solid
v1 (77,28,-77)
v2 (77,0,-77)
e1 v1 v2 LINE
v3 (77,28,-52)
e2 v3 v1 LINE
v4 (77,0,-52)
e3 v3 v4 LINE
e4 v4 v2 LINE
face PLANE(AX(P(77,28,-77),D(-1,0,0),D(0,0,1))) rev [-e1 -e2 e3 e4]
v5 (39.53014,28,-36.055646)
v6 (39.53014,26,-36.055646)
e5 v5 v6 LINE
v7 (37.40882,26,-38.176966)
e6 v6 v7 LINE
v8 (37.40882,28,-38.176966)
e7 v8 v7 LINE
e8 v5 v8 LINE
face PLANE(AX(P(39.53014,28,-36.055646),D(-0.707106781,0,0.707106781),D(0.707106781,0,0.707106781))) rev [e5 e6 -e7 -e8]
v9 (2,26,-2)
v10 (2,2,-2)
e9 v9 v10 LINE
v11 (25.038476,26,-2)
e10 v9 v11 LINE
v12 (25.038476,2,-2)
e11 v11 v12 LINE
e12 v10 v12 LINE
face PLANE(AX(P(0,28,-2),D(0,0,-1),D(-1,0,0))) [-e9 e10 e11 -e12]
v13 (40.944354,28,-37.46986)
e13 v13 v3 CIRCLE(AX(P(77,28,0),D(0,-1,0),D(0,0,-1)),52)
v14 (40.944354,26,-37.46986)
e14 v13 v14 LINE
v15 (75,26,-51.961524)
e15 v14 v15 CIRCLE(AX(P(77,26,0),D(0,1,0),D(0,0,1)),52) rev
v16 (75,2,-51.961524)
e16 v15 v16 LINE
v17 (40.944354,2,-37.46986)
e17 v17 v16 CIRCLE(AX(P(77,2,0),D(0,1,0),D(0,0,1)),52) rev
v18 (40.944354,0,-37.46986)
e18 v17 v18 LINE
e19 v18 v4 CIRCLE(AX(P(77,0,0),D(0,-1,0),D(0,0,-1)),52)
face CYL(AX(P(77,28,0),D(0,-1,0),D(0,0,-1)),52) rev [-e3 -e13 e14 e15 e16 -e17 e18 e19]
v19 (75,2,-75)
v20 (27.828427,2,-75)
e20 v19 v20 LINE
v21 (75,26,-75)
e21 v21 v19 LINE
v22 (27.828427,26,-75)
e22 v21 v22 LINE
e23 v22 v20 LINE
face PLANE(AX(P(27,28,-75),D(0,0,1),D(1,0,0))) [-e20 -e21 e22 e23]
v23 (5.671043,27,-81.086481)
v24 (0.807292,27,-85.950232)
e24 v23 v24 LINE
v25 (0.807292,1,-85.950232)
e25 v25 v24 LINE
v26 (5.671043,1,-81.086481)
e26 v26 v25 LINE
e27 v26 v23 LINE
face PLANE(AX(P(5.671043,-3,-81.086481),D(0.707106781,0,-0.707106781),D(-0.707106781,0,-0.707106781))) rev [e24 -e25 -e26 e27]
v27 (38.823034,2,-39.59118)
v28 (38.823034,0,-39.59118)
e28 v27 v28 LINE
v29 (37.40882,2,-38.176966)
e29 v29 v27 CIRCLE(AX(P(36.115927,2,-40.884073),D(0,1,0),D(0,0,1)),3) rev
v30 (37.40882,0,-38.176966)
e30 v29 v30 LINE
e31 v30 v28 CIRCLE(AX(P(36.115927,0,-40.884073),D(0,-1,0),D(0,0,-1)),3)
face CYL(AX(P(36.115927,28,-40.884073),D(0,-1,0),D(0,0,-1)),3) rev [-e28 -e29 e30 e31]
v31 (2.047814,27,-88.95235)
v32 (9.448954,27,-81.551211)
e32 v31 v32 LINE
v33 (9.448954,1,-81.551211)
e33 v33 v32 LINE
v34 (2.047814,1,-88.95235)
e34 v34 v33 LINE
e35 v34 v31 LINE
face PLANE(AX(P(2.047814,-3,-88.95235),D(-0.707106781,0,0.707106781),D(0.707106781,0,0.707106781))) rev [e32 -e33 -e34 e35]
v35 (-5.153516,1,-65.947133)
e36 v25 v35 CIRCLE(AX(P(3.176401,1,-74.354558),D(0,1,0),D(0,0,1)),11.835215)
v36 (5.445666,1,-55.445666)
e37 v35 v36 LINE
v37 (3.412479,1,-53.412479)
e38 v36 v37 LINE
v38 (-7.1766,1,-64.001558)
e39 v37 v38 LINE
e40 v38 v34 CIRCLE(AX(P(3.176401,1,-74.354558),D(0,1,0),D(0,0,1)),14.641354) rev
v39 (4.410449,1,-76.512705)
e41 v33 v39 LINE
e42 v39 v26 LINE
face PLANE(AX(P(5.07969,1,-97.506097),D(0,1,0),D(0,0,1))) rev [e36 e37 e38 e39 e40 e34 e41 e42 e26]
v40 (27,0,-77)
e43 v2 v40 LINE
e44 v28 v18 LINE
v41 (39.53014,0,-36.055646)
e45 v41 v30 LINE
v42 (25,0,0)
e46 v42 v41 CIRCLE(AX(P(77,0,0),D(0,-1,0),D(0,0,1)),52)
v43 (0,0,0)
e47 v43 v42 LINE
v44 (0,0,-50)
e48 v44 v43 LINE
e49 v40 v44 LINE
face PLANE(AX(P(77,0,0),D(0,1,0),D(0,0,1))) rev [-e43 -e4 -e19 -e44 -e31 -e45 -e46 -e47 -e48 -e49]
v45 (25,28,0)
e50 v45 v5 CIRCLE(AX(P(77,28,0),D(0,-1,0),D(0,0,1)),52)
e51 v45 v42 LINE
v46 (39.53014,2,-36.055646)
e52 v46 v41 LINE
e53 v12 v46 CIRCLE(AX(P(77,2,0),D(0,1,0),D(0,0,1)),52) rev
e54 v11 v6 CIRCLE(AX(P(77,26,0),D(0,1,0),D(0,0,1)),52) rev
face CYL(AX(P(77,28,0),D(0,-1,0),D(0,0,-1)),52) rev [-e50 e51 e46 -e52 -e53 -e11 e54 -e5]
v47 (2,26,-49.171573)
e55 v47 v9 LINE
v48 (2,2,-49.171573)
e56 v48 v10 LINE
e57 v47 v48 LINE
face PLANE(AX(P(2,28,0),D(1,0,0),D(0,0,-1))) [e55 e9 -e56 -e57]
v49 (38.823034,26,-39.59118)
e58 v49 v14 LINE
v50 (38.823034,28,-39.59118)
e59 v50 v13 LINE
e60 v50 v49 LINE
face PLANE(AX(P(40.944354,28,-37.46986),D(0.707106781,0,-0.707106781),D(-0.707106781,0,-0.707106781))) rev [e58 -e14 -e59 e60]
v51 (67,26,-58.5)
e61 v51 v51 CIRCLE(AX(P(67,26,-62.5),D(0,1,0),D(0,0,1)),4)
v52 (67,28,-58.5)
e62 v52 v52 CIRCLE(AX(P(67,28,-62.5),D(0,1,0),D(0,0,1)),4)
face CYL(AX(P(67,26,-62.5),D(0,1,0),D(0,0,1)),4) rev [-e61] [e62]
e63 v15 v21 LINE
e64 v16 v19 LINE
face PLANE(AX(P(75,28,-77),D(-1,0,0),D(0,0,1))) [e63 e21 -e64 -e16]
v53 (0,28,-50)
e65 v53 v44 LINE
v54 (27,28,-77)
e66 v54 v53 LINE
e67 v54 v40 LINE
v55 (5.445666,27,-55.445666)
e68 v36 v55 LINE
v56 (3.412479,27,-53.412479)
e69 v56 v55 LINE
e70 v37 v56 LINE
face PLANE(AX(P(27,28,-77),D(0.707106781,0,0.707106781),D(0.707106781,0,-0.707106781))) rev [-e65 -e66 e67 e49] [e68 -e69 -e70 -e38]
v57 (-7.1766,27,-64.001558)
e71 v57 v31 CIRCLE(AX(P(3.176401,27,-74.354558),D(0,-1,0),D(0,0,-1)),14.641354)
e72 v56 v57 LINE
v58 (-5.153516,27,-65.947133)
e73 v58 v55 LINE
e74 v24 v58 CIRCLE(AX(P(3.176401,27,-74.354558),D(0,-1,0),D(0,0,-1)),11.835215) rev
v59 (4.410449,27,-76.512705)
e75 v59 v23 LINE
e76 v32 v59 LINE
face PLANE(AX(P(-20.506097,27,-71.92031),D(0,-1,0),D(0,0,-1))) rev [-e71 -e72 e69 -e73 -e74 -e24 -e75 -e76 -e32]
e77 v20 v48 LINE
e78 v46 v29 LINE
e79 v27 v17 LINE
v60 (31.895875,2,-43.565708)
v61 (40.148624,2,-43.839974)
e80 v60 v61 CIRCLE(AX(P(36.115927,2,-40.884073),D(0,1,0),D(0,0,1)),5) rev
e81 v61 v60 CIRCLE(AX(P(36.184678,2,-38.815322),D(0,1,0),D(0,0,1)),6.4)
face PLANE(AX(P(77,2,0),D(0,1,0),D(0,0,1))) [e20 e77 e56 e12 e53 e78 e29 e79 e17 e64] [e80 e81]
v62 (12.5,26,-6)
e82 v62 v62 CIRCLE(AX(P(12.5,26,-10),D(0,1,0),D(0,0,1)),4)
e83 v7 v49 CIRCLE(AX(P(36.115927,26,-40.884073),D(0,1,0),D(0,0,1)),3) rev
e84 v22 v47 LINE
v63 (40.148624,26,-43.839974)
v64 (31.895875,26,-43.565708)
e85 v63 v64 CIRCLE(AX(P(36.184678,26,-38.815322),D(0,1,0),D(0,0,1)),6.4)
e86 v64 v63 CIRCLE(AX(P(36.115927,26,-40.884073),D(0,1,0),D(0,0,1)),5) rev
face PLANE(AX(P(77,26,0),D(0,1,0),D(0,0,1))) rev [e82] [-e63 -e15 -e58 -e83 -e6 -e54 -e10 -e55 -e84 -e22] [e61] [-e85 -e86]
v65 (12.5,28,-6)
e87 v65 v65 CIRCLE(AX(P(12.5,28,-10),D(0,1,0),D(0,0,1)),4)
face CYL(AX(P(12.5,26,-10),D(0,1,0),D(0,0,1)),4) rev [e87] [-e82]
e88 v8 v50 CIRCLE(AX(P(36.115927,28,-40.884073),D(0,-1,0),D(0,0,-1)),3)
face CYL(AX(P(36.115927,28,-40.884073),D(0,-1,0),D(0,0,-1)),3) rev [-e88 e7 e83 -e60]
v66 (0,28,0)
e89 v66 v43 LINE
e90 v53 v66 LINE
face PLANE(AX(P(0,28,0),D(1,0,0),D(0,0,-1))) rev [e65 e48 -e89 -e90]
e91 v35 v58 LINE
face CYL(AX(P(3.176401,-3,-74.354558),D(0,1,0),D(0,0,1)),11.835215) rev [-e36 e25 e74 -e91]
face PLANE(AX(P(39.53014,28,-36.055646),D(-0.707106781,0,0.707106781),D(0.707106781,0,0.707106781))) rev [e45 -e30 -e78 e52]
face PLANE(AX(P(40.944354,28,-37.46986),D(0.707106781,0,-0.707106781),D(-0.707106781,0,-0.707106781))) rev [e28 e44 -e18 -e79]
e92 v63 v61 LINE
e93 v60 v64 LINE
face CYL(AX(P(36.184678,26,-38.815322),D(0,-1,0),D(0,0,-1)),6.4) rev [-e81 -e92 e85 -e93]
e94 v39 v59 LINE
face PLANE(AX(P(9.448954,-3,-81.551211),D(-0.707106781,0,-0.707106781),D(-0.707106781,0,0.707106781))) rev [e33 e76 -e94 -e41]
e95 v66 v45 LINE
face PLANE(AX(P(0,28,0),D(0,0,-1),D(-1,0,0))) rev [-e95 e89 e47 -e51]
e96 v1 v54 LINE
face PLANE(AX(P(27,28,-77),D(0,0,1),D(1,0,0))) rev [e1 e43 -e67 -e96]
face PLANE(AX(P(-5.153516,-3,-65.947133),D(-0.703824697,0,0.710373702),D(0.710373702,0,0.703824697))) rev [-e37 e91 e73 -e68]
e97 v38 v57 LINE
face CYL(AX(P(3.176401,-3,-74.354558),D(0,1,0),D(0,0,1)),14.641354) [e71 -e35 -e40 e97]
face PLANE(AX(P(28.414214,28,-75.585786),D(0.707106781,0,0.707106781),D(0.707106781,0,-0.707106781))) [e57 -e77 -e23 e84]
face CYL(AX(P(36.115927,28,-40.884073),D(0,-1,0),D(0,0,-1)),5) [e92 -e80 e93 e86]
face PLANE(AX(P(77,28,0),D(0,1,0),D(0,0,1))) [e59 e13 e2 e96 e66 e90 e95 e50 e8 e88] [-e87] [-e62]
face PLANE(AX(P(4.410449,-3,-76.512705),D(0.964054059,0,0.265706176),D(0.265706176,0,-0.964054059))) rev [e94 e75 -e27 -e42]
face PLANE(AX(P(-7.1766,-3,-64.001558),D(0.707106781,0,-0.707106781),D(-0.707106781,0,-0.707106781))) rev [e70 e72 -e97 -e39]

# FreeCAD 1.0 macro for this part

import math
import FreeCAD as App
import Part
import Sketcher
Q = App.Units.Quantity


def faces_at(feature, points):
    """Names of the faces that lie closest to the given points."""
    faces = feature.Shape.Faces
    near = lambda p: min(range(len(faces)), key=lambda i: faces[i].distToShape(Part.Vertex(*p))[0])
    return sorted({f"Face{near(p) + 1}" for p in points})

doc = App.newDocument("Part")
body = doc.addObject("PartDesign::Body", "Body")

sketch1 = body.newObject("Sketcher::SketchObject", "Sketch")
sketch1.AttachmentSupport = (doc.getObject("XZ_Plane"), [""])
sketch1.MapMode = "FlatFace"
sketch1.addGeometry(Part.LineSegment(App.Vector(0, -50, 0), App.Vector(0, 0, 0)), False)
sketch1.addGeometry(Part.LineSegment(App.Vector(0, 0, 0), App.Vector(25, 0, 0)), False)
sketch1.addGeometry(Part.ArcOfCircle(Part.Circle(App.Vector(77, 0, 0), App.Vector(0, 0, 1), 52), math.radians(180), math.radians(224)), False)
sketch1.addGeometry(Part.LineSegment(App.Vector(39.5, -36.1, 0), App.Vector(37.4, -38.2, 0)), False)
sketch1.addGeometry(Part.ArcOfCircle(Part.Circle(App.Vector(36.1, -40.9, 0), App.Vector(0, 0, 1), 3), math.radians(64), math.radians(386)), False)
sketch1.addGeometry(Part.LineSegment(App.Vector(38.8, -39.6, 0), App.Vector(40.9, -37.5, 0)), False)
sketch1.addGeometry(Part.ArcOfCircle(Part.Circle(App.Vector(77, 0, 0), App.Vector(0, 0, 1), 52), math.radians(-134), math.radians(-90)), False)
sketch1.addGeometry(Part.LineSegment(App.Vector(77, -52, 0), App.Vector(77, -77, 0)), False)
sketch1.addGeometry(Part.LineSegment(App.Vector(77, -77, 0), App.Vector(27, -77, 0)), False)
sketch1.addGeometry(Part.LineSegment(App.Vector(27, -77, 0), App.Vector(0, -50, 0)), False)
sketch1.addConstraint(Sketcher.Constraint("Coincident", 0, 2, 1, 1))
sketch1.addConstraint(Sketcher.Constraint("Coincident", 1, 2, 2, 1))
sketch1.addConstraint(Sketcher.Constraint("Coincident", 2, 2, 3, 1))
sketch1.addConstraint(Sketcher.Constraint("Coincident", 3, 2, 4, 1))
sketch1.addConstraint(Sketcher.Constraint("Coincident", 4, 2, 5, 1))
sketch1.addConstraint(Sketcher.Constraint("Coincident", 5, 2, 6, 1))
sketch1.addConstraint(Sketcher.Constraint("Coincident", 6, 2, 7, 1))
sketch1.addConstraint(Sketcher.Constraint("Coincident", 7, 2, 8, 1))
sketch1.addConstraint(Sketcher.Constraint("Coincident", 8, 2, 9, 1))
sketch1.addConstraint(Sketcher.Constraint("Coincident", 9, 2, 0, 1))
sketch1.addConstraint(Sketcher.Constraint("Vertical", 0))
sketch1.addConstraint(Sketcher.Constraint("Horizontal", 1))
sketch1.addConstraint(Sketcher.Constraint("Vertical", 7))
sketch1.addConstraint(Sketcher.Constraint("Horizontal", 8))
sketch1.addConstraint(Sketcher.Constraint("Coincident", 0, 2, -1, 1))
sketch1.addConstraint(Sketcher.Constraint("Coincident", 6, 3, 2, 3))
sketch1.addConstraint(Sketcher.Constraint("Equal", 2, 6))
sketch1.addConstraint(Sketcher.Constraint("PointOnObject", 2, 3, -1))
sketch1.addConstraint(Sketcher.Constraint("Parallel", 3, 5))
sketch1.addConstraint(Sketcher.Constraint("Perpendicular", 5, 9))
sketch1.addConstraint(Sketcher.Constraint("Vertical", 2, 3, 6, 2))
sketch1.addConstraint(Sketcher.Constraint("Equal", 8, 0))
sketch1.addConstraint(Sketcher.Constraint("Equal", 1, 7))
sketch1.addConstraint(Sketcher.Constraint("Equal", 3, 5))
sketch1.addConstraint(Sketcher.Constraint("Radius", 2, Q("52 mm")))
sketch1.addConstraint(Sketcher.Constraint("Radius", 4, Q("3 mm")))
sketch1.addConstraint(Sketcher.Constraint("DistanceX", 1, 1, 1, 2, Q("25 mm")))
sketch1.addConstraint(Sketcher.Constraint("DistanceX", 8, 2, 8, 1, Q("50 mm")))
sketch1.addConstraint(Sketcher.Constraint("Distance", 3, Q("3 mm")))
sketch1.addConstraint(Sketcher.Constraint("DistanceX", -1, 1, 2, 2, Q("39.53014 mm")))
sketch1.addConstraint(Sketcher.Constraint("DistanceY", 4, 2, -1, 1, Q("39.59118 mm")))
pad1 = body.newObject("PartDesign::Pad", "Pad")
pad1.Profile = sketch1
pad1.Length = 28
pad1.Reversed = True
doc.recompute()

thickness = body.newObject("PartDesign::Thickness", "Thickness")
thickness.Base = (pad1, faces_at(pad1, [(57.563, 14, -48.231), (28.769, 14, -19.437)]))
thickness.Value = 2
thickness.Reversed = True
thickness.Join = "Intersection"

sketch2 = body.newObject("Sketcher::SketchObject", "Sketch001")
sketch2.AttachmentSupport = (doc.getObject("XZ_Plane"), [""])
sketch2.MapMode = "FlatFace"
sketch2.AttachmentOffset = App.Placement(App.Vector(0, 0, -14), App.Rotation())
sketch2.addGeometry(Part.Circle(App.Vector(36, -39, 0), App.Vector(0, 0, 1), 6), False)
sketch2.addConstraint(Sketcher.Constraint("Diameter", 0, Q("12.8 mm")))
sketch2.addConstraint(Sketcher.Constraint("DistanceX", -1, 1, 0, 3, Q("36.184678 mm")))
sketch2.addConstraint(Sketcher.Constraint("DistanceY", 0, 3, -1, 1, Q("38.815322 mm")))
pocket1 = body.newObject("PartDesign::Pocket", "Pocket")
pocket1.Profile = sketch2
pocket1.Type = "TwoLengths"
pocket1.Length = 12
pocket1.Length2 = 12

sketch3 = body.newObject("Sketcher::SketchObject", "Sketch002")
sketch3.AttachmentSupport = (doc.getObject("XZ_Plane"), [""])
sketch3.MapMode = "FlatFace"
sketch3.AttachmentOffset = App.Placement(App.Vector(0, 0, -28), App.Rotation())
sketch3.addGeometry(Part.Circle(App.Vector(67, -62.5, 0), App.Vector(0, 0, 1), 4), False)
sketch3.addGeometry(Part.Circle(App.Vector(12.5, -10, 0), App.Vector(0, 0, 1), 4), False)
sketch3.addConstraint(Sketcher.Constraint("Equal", 0, 1))
sketch3.addConstraint(Sketcher.Constraint("Diameter", 0, Q("8 mm")))
sketch3.addConstraint(Sketcher.Constraint("DistanceX", -1, 1, 0, 3, Q("67 mm")))
sketch3.addConstraint(Sketcher.Constraint("DistanceY", 1, 3, -1, 1, Q("10 mm")))
sketch3.addConstraint(Sketcher.Constraint("DistanceY", 0, 3, -1, 1, Q("62.5 mm")))
sketch3.addConstraint(Sketcher.Constraint("DistanceX", -1, 1, 1, 3, Q("12.5 mm")))
pocket2 = body.newObject("PartDesign::Pocket", "Pocket001")
pocket2.Profile = sketch3
pocket2.Length = 2
pocket2.Reversed = True

sketch4 = body.newObject("Sketcher::SketchObject", "Sketch003")
sketch4.Placement = App.Placement(App.Vector(-25, 0, -25), App.Rotation(App.Vector(-0.707106781, 0, 0.707106781), App.Vector(0, 0.999999999, 0), App.Vector(-0.707106781, 0, -0.707106781), "ZXY"))
sketch4.addGeometry(Part.LineSegment(App.Vector(-73, 27, 0), App.Vector(-73, 1, 0)), False)
sketch4.addGeometry(Part.LineSegment(App.Vector(-73, 1, 0), App.Vector(-36, 1, 0)), False)
sketch4.addGeometry(Part.LineSegment(App.Vector(-36, 1, 0), App.Vector(-36, 27, 0)), False)
sketch4.addGeometry(Part.LineSegment(App.Vector(-36, 27, 0), App.Vector(-73, 27, 0)), False)
sketch4.addConstraint(Sketcher.Constraint("Coincident", 0, 2, 1, 1))
sketch4.addConstraint(Sketcher.Constraint("Coincident", 1, 2, 2, 1))
sketch4.addConstraint(Sketcher.Constraint("Coincident", 2, 2, 3, 1))
sketch4.addConstraint(Sketcher.Constraint("Coincident", 3, 2, 0, 1))
sketch4.addConstraint(Sketcher.Constraint("Vertical", 0))
sketch4.addConstraint(Sketcher.Constraint("Horizontal", 1))
sketch4.addConstraint(Sketcher.Constraint("Vertical", 2))
sketch4.addConstraint(Sketcher.Constraint("Horizontal", 3))
sketch4.addConstraint(Sketcher.Constraint("DistanceY", 0, 2, 0, 1, Q("26 mm")))
sketch4.addConstraint(Sketcher.Constraint("DistanceY", -1, 1, 0, 2, Q("1 mm")))
sketch4.addConstraint(Sketcher.Constraint("DistanceX", 1, 1, 1, 2, Q("36.183766 mm")))
sketch4.addConstraint(Sketcher.Constraint("DistanceX", 1, 2, -1, 1, Q("36.355339 mm")))
pad2 = body.newObject("PartDesign::Pad", "Pad001")
pad2.Profile = sketch4
pad2.Length = 30

sketch5 = body.newObject("Sketcher::SketchObject", "Sketch004")
sketch5.AttachmentSupport = (doc.getObject("XZ_Plane"), [""])
sketch5.MapMode = "FlatFace"
sketch5.AttachmentOffset = App.Placement(App.Vector(0, 0, -27), App.Rotation())
sketch5.addGeometry(Part.LineSegment(App.Vector(3.4, -53.4, 0), App.Vector(-7.2, -64, 0)), False)
sketch5.addGeometry(Part.ArcOfCircle(Part.Circle(App.Vector(3.2, -74.4, 0), App.Vector(0, 0, 1), 14.6), math.radians(135), math.radians(266)), False)
sketch5.addGeometry(Part.LineSegment(App.Vector(2, -89, 0), App.Vector(9.4, -81.6, 0)), False)
sketch5.addGeometry(Part.LineSegment(App.Vector(9.4, -81.6, 0), App.Vector(4.4, -76.5, 0)), False)
sketch5.addGeometry(Part.LineSegment(App.Vector(4.4, -76.5, 0), App.Vector(5.7, -81.1, 0)), False)
sketch5.addGeometry(Part.LineSegment(App.Vector(5.7, -81.1, 0), App.Vector(0.8, -86, 0)), False)
sketch5.addGeometry(Part.ArcOfCircle(Part.Circle(App.Vector(3.2, -74.4, 0), App.Vector(0, 0, 1), 11.8), math.radians(135), math.radians(258)), False)
sketch5.addGeometry(Part.LineSegment(App.Vector(-5.2, -65.9, 0), App.Vector(5.4, -55.4, 0)), False)
sketch5.addGeometry(Part.LineSegment(App.Vector(5.4, -55.4, 0), App.Vector(26.3, -76.3, 0)), False)
sketch5.addGeometry(Part.LineSegment(App.Vector(26.3, -76.3, 0), App.Vector(5.1, -97.5, 0)), False)
sketch5.addGeometry(Part.LineSegment(App.Vector(5.1, -97.5, 0), App.Vector(-20.5, -71.9, 0)), False)
sketch5.addGeometry(Part.LineSegment(App.Vector(-20.5, -71.9, 0), App.Vector(0.7, -50.7, 0)), False)
sketch5.addGeometry(Part.LineSegment(App.Vector(0.7, -50.7, 0), App.Vector(3.4, -53.4, 0)), False)
sketch5.addConstraint(Sketcher.Constraint("Tangent", 0, 2, 1, 1))
sketch5.addConstraint(Sketcher.Constraint("Coincident", 1, 2, 2, 1))
sketch5.addConstraint(Sketcher.Constraint("Coincident", 2, 2, 3, 1))
sketch5.addConstraint(Sketcher.Constraint("Coincident", 3, 2, 4, 1))
sketch5.addConstraint(Sketcher.Constraint("Coincident", 4, 2, 5, 1))
sketch5.addConstraint(Sketcher.Constraint("Coincident", 5, 2, 6, 2))
sketch5.addConstraint(Sketcher.Constraint("Tangent", 6, 1, 7, 1))
sketch5.addConstraint(Sketcher.Constraint("Coincident", 7, 2, 8, 1))
sketch5.addConstraint(Sketcher.Constraint("Coincident", 8, 2, 9, 1))
sketch5.addConstraint(Sketcher.Constraint("Coincident", 9, 2, 10, 1))
sketch5.addConstraint(Sketcher.Constraint("Coincident", 10, 2, 11, 1))
sketch5.addConstraint(Sketcher.Constraint("Coincident", 11, 2, 12, 1))
sketch5.addConstraint(Sketcher.Constraint("Coincident", 12, 2, 0, 1))
sketch5.addConstraint(Sketcher.Constraint("Coincident", 6, 3, 1, 3))
sketch5.addConstraint(Sketcher.Constraint("Parallel", 0, 2))
sketch5.addConstraint(Sketcher.Constraint("Perpendicular", 2, 3))
sketch5.addConstraint(Sketcher.Constraint("Perpendicular", 3, 5))
sketch5.addConstraint(Sketcher.Constraint("Perpendicular", 5, 8))
sketch5.addConstraint(Sketcher.Constraint("Perpendicular", 8, 9))
sketch5.addConstraint(Sketcher.Constraint("Perpendicular", 9, 10))
sketch5.addConstraint(Sketcher.Constraint("Perpendicular", 10, 11))
sketch5.addConstraint(Sketcher.Constraint("Perpendicular", 11, 12))
sketch5.addConstraint(Sketcher.Constraint("Equal", 9, 11))
sketch5.addConstraint(Sketcher.Constraint("Angle", 0, Q("-135 deg")))
sketch5.addConstraint(Sketcher.Constraint("Distance", 9, Q("30 mm")))
sketch5.addConstraint(Sketcher.Constraint("Radius", 1, Q("14.641354 mm")))
sketch5.addConstraint(Sketcher.Constraint("Radius", 6, Q("11.835215 mm")))
sketch5.addConstraint(Sketcher.Constraint("DistanceX", -1, 1, 1, 3, Q("3.176401 mm")))
sketch5.addConstraint(Sketcher.Constraint("Distance", 0, Q("14.975219 mm")))
sketch5.addConstraint(Sketcher.Constraint("Distance", 5, Q("6.878381 mm")))
sketch5.addConstraint(Sketcher.Constraint("Distance", 7, Q("14.920572 mm")))
sketch5.addConstraint(Sketcher.Constraint("Distance", 8, Q("29.482432 mm")))
sketch5.addConstraint(Sketcher.Constraint("DistanceY", 1, 3, -1, 1, Q("74.354558 mm")))
sketch5.addConstraint(Sketcher.Constraint("DistanceY", 1, 2, -1, 1, Q("88.95235 mm")))
sketch5.addConstraint(Sketcher.Constraint("DistanceY", 2, 2, -1, 1, Q("81.551211 mm")))
sketch5.addConstraint(Sketcher.Constraint("DistanceX", -1, 1, 3, 2, Q("4.410449 mm")))
sketch5.addConstraint(Sketcher.Constraint("DistanceY", 4, 2, -1, 1, Q("81.086481 mm")))
sketch5.addConstraint(Sketcher.Constraint("DistanceY", 10, 2, -1, 1, Q("71.92031 mm")))
pocket3 = body.newObject("PartDesign::Pocket", "Pocket002")
pocket3.Profile = sketch5
pocket3.Length = 30
pocket3.Reversed = True

doc.recompute()
